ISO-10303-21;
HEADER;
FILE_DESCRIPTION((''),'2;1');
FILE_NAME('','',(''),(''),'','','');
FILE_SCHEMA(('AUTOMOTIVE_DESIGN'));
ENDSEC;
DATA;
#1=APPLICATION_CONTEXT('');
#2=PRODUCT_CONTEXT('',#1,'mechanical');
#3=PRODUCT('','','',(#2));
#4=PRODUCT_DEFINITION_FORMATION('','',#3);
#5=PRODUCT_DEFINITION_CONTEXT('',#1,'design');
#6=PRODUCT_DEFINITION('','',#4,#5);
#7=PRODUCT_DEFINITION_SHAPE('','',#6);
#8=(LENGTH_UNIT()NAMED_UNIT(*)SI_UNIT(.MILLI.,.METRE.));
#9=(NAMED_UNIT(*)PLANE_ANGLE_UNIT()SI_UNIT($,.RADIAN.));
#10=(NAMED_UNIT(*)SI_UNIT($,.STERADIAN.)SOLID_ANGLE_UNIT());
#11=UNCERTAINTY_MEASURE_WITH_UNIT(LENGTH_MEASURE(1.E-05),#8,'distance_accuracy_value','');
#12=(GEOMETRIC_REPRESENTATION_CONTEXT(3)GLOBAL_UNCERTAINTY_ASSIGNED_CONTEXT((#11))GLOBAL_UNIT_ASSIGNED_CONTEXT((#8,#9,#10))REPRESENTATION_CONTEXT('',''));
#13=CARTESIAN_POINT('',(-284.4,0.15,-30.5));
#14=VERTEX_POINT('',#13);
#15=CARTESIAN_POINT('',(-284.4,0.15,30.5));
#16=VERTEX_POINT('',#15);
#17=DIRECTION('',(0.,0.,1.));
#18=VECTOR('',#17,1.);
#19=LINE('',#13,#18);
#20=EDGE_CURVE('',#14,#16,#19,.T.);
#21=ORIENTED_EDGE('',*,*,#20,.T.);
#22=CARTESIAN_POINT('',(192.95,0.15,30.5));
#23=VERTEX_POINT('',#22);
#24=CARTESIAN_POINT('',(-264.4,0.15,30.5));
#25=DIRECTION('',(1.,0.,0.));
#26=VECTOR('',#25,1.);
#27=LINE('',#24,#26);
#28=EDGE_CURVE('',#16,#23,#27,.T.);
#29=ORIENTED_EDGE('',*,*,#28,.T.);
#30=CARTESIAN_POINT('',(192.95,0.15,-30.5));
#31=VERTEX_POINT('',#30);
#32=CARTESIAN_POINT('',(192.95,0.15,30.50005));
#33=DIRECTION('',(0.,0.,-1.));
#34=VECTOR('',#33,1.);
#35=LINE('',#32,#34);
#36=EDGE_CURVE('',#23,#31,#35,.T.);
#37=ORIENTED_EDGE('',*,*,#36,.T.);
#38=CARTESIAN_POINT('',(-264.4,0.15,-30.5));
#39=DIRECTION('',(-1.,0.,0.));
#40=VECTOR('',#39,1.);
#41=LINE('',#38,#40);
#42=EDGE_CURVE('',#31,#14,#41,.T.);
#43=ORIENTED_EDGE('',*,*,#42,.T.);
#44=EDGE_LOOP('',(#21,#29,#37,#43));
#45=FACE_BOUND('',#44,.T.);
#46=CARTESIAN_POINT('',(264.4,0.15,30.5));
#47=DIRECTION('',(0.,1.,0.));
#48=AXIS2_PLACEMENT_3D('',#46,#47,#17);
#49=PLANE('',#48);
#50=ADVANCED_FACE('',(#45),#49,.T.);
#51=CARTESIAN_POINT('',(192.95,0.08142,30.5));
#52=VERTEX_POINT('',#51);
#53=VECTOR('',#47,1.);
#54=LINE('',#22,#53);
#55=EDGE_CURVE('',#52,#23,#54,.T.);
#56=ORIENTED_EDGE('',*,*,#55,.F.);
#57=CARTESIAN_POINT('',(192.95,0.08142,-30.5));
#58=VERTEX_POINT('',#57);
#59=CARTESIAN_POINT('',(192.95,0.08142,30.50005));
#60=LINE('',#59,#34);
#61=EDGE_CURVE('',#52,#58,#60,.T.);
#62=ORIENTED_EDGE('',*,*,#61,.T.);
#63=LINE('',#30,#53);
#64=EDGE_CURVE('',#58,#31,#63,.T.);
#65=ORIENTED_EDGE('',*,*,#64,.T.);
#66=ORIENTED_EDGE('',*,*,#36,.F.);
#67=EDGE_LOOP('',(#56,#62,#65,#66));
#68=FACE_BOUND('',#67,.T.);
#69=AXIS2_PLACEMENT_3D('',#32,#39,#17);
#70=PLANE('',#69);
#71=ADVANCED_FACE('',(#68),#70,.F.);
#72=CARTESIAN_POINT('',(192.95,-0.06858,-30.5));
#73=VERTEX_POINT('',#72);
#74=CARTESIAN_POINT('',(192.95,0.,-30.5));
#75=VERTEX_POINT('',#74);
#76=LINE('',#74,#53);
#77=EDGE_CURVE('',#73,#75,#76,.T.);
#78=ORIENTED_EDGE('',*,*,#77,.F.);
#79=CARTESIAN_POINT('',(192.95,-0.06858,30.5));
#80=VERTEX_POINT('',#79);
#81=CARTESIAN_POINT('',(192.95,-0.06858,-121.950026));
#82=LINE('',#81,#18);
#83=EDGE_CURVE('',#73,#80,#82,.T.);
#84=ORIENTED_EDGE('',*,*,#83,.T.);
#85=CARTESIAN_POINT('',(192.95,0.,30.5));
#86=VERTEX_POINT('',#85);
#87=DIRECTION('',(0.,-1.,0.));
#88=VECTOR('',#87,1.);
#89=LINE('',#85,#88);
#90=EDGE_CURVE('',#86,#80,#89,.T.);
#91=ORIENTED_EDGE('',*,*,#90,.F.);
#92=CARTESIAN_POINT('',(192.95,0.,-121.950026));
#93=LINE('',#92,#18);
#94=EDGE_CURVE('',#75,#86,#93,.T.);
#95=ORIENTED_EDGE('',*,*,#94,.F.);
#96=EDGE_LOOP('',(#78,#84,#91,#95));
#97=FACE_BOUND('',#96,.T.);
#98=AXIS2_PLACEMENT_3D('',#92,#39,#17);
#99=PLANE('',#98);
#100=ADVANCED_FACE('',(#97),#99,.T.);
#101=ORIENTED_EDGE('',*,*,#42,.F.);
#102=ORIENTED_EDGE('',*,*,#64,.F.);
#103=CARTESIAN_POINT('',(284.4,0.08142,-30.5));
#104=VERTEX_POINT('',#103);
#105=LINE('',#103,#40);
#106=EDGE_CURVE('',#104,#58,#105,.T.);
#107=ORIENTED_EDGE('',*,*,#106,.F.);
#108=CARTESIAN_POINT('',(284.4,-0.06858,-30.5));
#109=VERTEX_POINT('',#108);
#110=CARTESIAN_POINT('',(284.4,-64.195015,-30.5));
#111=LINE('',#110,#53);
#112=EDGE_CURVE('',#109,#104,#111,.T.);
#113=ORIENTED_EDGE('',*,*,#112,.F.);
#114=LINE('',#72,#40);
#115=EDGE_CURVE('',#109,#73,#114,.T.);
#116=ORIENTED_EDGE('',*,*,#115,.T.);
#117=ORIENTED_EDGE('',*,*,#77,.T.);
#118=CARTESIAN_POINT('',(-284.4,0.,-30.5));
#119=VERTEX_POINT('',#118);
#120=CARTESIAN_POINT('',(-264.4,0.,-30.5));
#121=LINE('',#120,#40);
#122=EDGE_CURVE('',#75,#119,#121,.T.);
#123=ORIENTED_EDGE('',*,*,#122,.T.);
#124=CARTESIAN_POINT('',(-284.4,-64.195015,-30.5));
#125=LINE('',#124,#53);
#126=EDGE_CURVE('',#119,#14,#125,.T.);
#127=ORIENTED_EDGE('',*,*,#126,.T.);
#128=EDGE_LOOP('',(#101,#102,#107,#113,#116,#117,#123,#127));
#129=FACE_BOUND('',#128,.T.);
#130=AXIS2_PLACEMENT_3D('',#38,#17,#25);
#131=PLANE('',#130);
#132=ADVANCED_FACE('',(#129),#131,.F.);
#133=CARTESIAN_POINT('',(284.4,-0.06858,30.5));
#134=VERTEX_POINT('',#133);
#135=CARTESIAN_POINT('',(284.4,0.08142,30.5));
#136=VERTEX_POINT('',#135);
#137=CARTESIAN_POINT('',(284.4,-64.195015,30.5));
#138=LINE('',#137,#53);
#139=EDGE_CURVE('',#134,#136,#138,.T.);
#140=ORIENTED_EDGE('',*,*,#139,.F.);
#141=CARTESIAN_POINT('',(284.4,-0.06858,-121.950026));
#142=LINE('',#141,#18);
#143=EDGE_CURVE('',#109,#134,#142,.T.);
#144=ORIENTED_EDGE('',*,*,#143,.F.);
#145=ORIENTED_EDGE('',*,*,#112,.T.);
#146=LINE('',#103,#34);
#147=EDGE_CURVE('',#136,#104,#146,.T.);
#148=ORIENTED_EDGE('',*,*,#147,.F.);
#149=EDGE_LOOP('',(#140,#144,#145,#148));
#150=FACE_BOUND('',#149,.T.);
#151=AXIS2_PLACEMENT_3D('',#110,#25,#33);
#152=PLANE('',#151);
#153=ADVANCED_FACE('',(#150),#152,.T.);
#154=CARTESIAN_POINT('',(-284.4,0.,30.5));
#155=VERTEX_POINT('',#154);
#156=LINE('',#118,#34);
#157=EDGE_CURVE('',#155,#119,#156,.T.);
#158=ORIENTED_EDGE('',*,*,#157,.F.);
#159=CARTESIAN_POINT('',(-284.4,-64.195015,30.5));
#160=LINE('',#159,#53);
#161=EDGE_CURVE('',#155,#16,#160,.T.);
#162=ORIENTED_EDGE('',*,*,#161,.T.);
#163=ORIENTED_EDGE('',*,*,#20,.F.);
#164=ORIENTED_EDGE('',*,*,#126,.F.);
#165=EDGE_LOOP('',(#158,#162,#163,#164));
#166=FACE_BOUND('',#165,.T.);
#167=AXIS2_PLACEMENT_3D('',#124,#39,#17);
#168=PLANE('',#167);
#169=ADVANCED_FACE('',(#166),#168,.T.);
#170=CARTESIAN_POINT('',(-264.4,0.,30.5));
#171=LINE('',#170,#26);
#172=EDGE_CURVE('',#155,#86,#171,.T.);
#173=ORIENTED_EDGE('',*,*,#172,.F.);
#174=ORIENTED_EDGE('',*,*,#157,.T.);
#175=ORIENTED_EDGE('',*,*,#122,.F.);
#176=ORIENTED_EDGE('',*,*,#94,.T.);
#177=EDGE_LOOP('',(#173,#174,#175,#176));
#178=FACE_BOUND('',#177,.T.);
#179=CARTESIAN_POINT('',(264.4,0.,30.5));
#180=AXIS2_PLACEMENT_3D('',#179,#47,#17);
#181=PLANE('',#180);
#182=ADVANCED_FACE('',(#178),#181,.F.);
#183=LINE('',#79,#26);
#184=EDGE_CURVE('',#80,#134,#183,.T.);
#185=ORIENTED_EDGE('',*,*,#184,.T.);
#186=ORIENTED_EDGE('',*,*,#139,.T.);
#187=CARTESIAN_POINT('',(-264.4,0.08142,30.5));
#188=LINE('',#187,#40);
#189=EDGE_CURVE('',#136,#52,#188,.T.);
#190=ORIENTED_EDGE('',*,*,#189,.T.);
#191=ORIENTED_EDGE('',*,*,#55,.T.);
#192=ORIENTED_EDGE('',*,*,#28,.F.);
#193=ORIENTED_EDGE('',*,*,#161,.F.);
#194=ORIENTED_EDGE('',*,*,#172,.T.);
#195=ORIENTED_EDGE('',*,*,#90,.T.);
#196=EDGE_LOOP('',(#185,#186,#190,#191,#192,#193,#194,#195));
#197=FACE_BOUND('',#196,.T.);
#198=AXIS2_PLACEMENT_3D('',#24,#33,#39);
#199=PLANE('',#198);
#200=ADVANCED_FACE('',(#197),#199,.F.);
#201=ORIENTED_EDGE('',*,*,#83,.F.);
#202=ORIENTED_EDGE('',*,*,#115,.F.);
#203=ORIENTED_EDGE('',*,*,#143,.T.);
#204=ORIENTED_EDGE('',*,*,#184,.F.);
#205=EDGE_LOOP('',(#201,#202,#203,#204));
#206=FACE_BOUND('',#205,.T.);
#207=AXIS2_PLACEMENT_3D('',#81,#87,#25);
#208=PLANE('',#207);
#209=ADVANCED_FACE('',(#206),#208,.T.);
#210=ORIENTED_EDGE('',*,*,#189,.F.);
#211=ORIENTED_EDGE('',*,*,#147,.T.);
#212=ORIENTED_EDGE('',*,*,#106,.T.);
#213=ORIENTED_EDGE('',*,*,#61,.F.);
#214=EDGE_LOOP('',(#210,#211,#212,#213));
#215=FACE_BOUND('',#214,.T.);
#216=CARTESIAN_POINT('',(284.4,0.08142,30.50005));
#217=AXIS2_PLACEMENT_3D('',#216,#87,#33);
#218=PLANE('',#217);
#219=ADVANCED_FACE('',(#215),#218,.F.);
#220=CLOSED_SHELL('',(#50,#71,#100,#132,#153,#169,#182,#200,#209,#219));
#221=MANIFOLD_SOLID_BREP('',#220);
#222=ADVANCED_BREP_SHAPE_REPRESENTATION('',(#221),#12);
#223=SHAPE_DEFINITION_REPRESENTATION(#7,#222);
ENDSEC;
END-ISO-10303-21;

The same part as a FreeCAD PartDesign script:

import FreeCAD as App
import Part
import Sketcher
from FreeCAD import Vector
Q = App.Units.Quantity


def add_polygon(sketch, points):
    """Adds a closed chain of lines whose ends are joined by coincident constraints."""
    first, n = sketch.GeometryCount, len(points)
    for a, b in zip(points, points[1:] + points[:1]):
        sketch.addGeometry(Part.LineSegment(App.Vector(*a, 0), App.Vector(*b, 0)), False)
    for i in range(n):
        sketch.addConstraint(Sketcher.Constraint("Coincident", first + i, 2, first + (i + 1) % n, 1))

doc = App.newDocument("Part")
body = doc.addObject("PartDesign::Body", "Body")

# Sketch on XZ plane
sketch1 = body.newObject("Sketcher::SketchObject", "Sketch")
sketch1.AttachmentSupport = (doc.getObject("XZ_Plane"), [""])
sketch1.MapMode = "FlatFace"
add_polygon(sketch1, [(-264.4, -30.5), (-264.4, 30.5), (264.4, 30.5), (264.4, -30.5)])  # lines 0-3
sketch1.addConstraint([
    Sketcher.Constraint("Vertical", 0),
    Sketcher.Constraint("Horizontal", 1),
    Sketcher.Constraint("Vertical", 2),
    Sketcher.Constraint("Horizontal", 3),
    Sketcher.Constraint("Symmetric", 0, 2, 2, 2, -1, 1),
    Sketcher.Constraint("DistanceY", 0, 1, 0, 2, Q("61 mm")),
    Sketcher.Constraint("DistanceX", 1, 1, 1, 2, Q("528.8 mm")),
])
pad1 = body.newObject("PartDesign::Pad", "Pad")
pad1.Profile = sketch1
pad1.Length = 0.15
pad1.Reversed = True

# Sketch on XZ plane
sketch2 = body.newObject("Sketcher::SketchObject", "Sketch001")
sketch2.AttachmentSupport = (doc.getObject("XZ_Plane"), [""])
sketch2.MapMode = "FlatFace"
sketch2.AttachmentOffset = App.Placement(Vector(0, 0, -0.15), App.Rotation())
add_polygon(sketch2, [(-284.4, -30.5), (-284.4, 30.5), (-264.4, 30.5), (-264.4, -30.5)])  # lines 0-3
add_polygon(sketch2, [(264.4, -30.5), (264.4, 30.5), (284.4, 30.5), (284.4, -30.5)])  # lines 4-7
sketch2.addConstraint([
    Sketcher.Constraint("Vertical", 0),
    Sketcher.Constraint("Horizontal", 1),
    Sketcher.Constraint("Vertical", 2),
    Sketcher.Constraint("Horizontal", 3),
    Sketcher.Constraint("Vertical", 4),
    Sketcher.Constraint("Horizontal", 5),
    Sketcher.Constraint("Vertical", 6),
    Sketcher.Constraint("Horizontal", 7),
    Sketcher.Constraint("Symmetric", 2, 2, 4, 2, -1, 1),
    Sketcher.Constraint("Symmetric", 0, 2, 6, 2, -1, 1),
    Sketcher.Constraint("Horizontal", 1, 2, 4, 2),
    Sketcher.Constraint("DistanceX", 1, 1, 1, 2, Q("20 mm")),
    Sketcher.Constraint("DistanceY", 0, 1, 0, 2, Q("61 mm")),
    Sketcher.Constraint("DistanceX", 0, 2, -1, 1, Q("284.4 mm")),
])
pad2 = body.newObject("PartDesign::Pad", "Pad001")
pad2.Profile = sketch2
pad2.Length = 0.15

# Sketch on XY plane
sketch3 = body.newObject("Sketcher::SketchObject", "Sketch002")
sketch3.AttachmentSupport = (doc.getObject("XY_Plane"), [""])
sketch3.MapMode = "FlatFace"
sketch3.AttachmentOffset = App.Placement(Vector(0, 0, 30.5), App.Rotation())
add_polygon(sketch3, [(192.95, 0), (192.95, -0.06858), (284.4, -0.06858), (284.4, 0)])  # lines 0-3
sketch3.addConstraint([
    Sketcher.Constraint("Vertical", 0),
    Sketcher.Constraint("Horizontal", 1),
    Sketcher.Constraint("Vertical", 2),
    Sketcher.Constraint("Horizontal", 3),
    Sketcher.Constraint("PointOnObject", 2, 2, -1),
    Sketcher.Constraint("DistanceX", 1, 1, 1, 2, Q("91.45 mm")),
    Sketcher.Constraint("DistanceX", -1, 1, 1, 2, Q("284.4 mm")),
    Sketcher.Constraint("DistanceY", 0, 2, 0, 1, Q("0.06858 mm")),
])
pad3 = body.newObject("PartDesign::Pad", "Pad002")
pad3.Profile = sketch3
pad3.Length = 61
pad3.Reversed = True

# Sketch on XY plane
sketch4 = body.newObject("Sketcher::SketchObject", "Sketch003")
sketch4.AttachmentSupport = (doc.getObject("XY_Plane"), [""])
sketch4.MapMode = "FlatFace"
sketch4.AttachmentOffset = App.Placement(Vector(0, 0, -30.5), App.Rotation())
add_polygon(sketch4, [(284.4, 0.15), (284.4, 0.08142), (192.95, 0.08142), (192.95, 0.15)])  # lines 0-3
sketch4.addConstraint([
    Sketcher.Constraint("Vertical", 0),
    Sketcher.Constraint("Horizontal", 1),
    Sketcher.Constraint("Vertical", 2),
    Sketcher.Constraint("Horizontal", 3),
    Sketcher.Constraint("DistanceX", 1, 2, 1, 1, Q("91.45 mm")),
    Sketcher.Constraint("DistanceX", -1, 1, 0, 2, Q("284.4 mm")),
    Sketcher.Constraint("DistanceY", -1, 1, 2, 2, Q("0.15 mm")),
    Sketcher.Constraint("DistanceY", 0, 2, 0, 1, Q("0.06858 mm")),
])
pocket1 = body.newObject("PartDesign::Pocket", "Pocket")
pocket1.Profile = sketch4
pocket1.Type = "ThroughAll"
pocket1.Reversed = True

doc.recompute()
